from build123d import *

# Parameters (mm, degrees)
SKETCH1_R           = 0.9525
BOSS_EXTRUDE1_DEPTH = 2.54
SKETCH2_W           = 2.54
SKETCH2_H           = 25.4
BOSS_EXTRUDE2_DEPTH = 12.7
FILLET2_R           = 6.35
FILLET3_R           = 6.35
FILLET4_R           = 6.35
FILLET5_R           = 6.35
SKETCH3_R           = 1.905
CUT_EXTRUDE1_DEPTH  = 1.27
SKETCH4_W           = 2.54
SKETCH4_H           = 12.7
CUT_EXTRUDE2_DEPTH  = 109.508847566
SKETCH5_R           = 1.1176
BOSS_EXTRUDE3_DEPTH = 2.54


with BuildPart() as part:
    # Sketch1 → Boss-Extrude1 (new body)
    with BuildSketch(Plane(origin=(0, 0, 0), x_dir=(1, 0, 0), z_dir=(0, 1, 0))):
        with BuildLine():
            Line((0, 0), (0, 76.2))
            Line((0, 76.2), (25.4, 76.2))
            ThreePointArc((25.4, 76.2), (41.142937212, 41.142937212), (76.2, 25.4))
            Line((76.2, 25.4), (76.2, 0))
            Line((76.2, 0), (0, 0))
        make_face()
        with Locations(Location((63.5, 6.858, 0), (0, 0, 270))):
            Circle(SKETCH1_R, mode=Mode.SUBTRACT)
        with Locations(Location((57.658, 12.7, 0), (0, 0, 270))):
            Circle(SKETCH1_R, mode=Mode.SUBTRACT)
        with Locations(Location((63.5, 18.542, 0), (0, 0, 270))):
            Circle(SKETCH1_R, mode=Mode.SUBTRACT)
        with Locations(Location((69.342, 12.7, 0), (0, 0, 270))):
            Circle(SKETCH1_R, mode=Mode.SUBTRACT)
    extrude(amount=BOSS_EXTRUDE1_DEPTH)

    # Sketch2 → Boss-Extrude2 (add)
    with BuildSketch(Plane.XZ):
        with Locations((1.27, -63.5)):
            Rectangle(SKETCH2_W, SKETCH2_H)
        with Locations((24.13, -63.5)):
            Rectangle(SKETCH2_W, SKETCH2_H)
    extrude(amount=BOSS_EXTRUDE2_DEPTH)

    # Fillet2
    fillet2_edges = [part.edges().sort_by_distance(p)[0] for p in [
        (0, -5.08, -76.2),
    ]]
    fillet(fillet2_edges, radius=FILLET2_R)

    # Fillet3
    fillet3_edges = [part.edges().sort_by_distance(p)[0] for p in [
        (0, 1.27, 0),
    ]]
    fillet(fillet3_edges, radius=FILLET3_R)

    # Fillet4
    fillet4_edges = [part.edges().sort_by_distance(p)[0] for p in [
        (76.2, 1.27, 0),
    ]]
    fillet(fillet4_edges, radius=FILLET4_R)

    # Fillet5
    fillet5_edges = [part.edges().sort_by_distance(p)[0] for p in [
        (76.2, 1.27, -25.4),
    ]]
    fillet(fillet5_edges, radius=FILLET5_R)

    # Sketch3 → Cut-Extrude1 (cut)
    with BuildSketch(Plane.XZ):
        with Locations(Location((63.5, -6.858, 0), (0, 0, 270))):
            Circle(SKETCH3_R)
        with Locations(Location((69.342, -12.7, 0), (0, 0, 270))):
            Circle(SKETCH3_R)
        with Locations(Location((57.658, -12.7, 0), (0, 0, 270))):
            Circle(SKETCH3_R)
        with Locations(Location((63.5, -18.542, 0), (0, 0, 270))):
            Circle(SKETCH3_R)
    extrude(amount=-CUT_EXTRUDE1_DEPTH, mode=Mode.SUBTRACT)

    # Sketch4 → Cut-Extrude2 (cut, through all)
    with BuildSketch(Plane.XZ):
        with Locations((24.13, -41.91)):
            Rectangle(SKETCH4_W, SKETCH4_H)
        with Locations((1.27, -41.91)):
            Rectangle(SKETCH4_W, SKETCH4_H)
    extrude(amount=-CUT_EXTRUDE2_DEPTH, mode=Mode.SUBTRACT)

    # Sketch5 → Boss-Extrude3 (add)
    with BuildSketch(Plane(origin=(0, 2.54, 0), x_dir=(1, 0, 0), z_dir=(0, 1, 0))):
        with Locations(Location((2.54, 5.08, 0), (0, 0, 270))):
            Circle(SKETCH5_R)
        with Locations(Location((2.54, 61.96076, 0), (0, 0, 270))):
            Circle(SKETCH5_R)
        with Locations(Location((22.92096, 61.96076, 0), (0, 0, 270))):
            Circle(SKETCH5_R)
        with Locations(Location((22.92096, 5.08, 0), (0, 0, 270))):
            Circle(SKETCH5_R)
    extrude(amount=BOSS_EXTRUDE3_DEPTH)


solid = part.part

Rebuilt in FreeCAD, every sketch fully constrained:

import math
import FreeCAD as App
import Part
import Sketcher
from FreeCAD import Vector
Q = App.Units.Quantity


def edges_at(feature, points):
    """Names of the edges that pass closest to the given points."""
    edges = feature.Shape.Edges
    near = lambda p: min(range(len(edges)), key=lambda i: edges[i].distToShape(Part.Vertex(*p))[0])
    return sorted({f"Edge{near(p) + 1}" for p in points})

doc = App.newDocument("Part")
body = doc.addObject("PartDesign::Body", "Body")

sketch1 = doc.addObject("Sketcher::SketchObject", "Sketch")
body.addObject(sketch1)
sketch1.AttachmentSupport = (doc.XZ_Plane, [""])
sketch1.MapMode = "FlatFace"
sketch1.addGeometry([
    Part.LineSegment(Vector(0, -76.2, 0), Vector(0, 0, 0)),
    Part.LineSegment(Vector(0, 0, 0), Vector(76.2, 0, 0)),
    Part.LineSegment(Vector(76.2, 0, 0), Vector(76.2, -25.4, 0)),
    Part.ArcOfCircle(Part.Circle(Vector(79.375, -79.375, 0), Vector(0, 0, 1), 54.068302), math.radians(93.366461), math.radians(176.633539)),
    Part.LineSegment(Vector(25.4, -76.2, 0), Vector(0, -76.2, 0)),
    Part.Circle(Vector(63.5, -6.858, 0), Vector(0, 0, 1), 0.9525),
    Part.Circle(Vector(69.342, -12.7, 0), Vector(0, 0, 1), 0.9525),
    Part.Circle(Vector(57.658, -12.7, 0), Vector(0, 0, 1), 0.9525),
    Part.Circle(Vector(63.5, -18.542, 0), Vector(0, 0, 1), 0.9525),
], False)
sketch1.addConstraint([
    Sketcher.Constraint("Coincident", 0, 2, 1, 1),
    Sketcher.Constraint("Coincident", 1, 2, 2, 1),
    Sketcher.Constraint("Coincident", 2, 2, 3, 1),
    Sketcher.Constraint("Coincident", 3, 2, 4, 1),
    Sketcher.Constraint("Coincident", 4, 2, 0, 1),
    Sketcher.Constraint("Vertical", 0),
    Sketcher.Constraint("Horizontal", 1),
    Sketcher.Constraint("Vertical", 2),
    Sketcher.Constraint("Horizontal", 4),
    Sketcher.Constraint("Coincident", 0, 2, -1, 1),
    Sketcher.Constraint("Equal", 5, 6),
    Sketcher.Constraint("Equal", 6, 7),
    Sketcher.Constraint("Equal", 7, 8),
    Sketcher.Constraint("Horizontal", 6, 3, 7, 3),
    Sketcher.Constraint("Vertical", 5, 3, 8, 3),
    Sketcher.Constraint("Equal", 1, 0),
    Sketcher.Constraint("Equal", 4, 2),
    Sketcher.Constraint("DistanceX", 1, 1, 1, 2, Q("3 in")),
    Sketcher.Constraint("DistanceX", 4, 2, 4, 1, Q("1 in")),
    Sketcher.Constraint("Diameter", 5, Q("0.075 in")),
    Sketcher.Constraint("DistanceX", -1, 1, 5, 3, Q("2.5 in")),
    Sketcher.Constraint("DistanceY", 6, 3, -1, 1, Q("0.5 in")),
    Sketcher.Constraint("DistanceY", 5, 3, -1, 1, Q("0.27 in")),
    Sketcher.Constraint("DistanceX", -1, 1, 6, 3, Q("2.73 in")),
    Sketcher.Constraint("DistanceX", -1, 1, 7, 3, Q("2.27 in")),
    Sketcher.Constraint("DistanceY", 8, 3, -1, 1, Q("0.73 in")),
    Sketcher.Constraint("Radius", 3, Q("54.068302 mm")),
])
pad1 = doc.addObject("PartDesign::Pad", "Pad")
body.addObject(pad1)
pad1.Profile = sketch1
pad1.Length = Q("0.1 in")
pad1.Reversed = True

sketch2 = doc.addObject("Sketcher::SketchObject", "Sketch001")
body.addObject(sketch2)
sketch2.AttachmentSupport = (doc.XZ_Plane, [""])
sketch2.MapMode = "FlatFace"
sketch2.addGeometry([
    Part.LineSegment(Vector(0, -50.8, 0), Vector(0, -76.2, 0)),
    Part.LineSegment(Vector(0, -76.2, 0), Vector(2.54, -76.2, 0)),
    Part.LineSegment(Vector(2.54, -76.2, 0), Vector(2.54, -50.8, 0)),
    Part.LineSegment(Vector(2.54, -50.8, 0), Vector(0, -50.8, 0)),
    Part.LineSegment(Vector(22.86, -50.8, 0), Vector(22.86, -76.2, 0)),
    Part.LineSegment(Vector(22.86, -76.2, 0), Vector(25.4, -76.2, 0)),
    Part.LineSegment(Vector(25.4, -76.2, 0), Vector(25.4, -50.8, 0)),
    Part.LineSegment(Vector(25.4, -50.8, 0), Vector(22.86, -50.8, 0)),
], False)
sketch2.addConstraint([
    Sketcher.Constraint("Coincident", 0, 2, 1, 1),
    Sketcher.Constraint("Coincident", 1, 2, 2, 1),
    Sketcher.Constraint("Coincident", 2, 2, 3, 1),
    Sketcher.Constraint("Coincident", 3, 2, 0, 1),
    Sketcher.Constraint("Coincident", 4, 2, 5, 1),
    Sketcher.Constraint("Coincident", 5, 2, 6, 1),
    Sketcher.Constraint("Coincident", 6, 2, 7, 1),
    Sketcher.Constraint("Coincident", 7, 2, 4, 1),
    Sketcher.Constraint("Vertical", 0),
    Sketcher.Constraint("Horizontal", 1),
    Sketcher.Constraint("Vertical", 2),
    Sketcher.Constraint("Horizontal", 3),
    Sketcher.Constraint("Vertical", 4),
    Sketcher.Constraint("Horizontal", 5),
    Sketcher.Constraint("Vertical", 6),
    Sketcher.Constraint("Horizontal", 7),
    Sketcher.Constraint("PointOnObject", 0, 2, -2),
    Sketcher.Constraint("Horizontal", 1, 2, 4, 2),
    Sketcher.Constraint("Horizontal", 3, 2, 6, 2),
    Sketcher.Constraint("Equal", 3, 5),
    Sketcher.Constraint("DistanceY", 0, 2, 0, 1, Q("1 in")),
    Sketcher.Constraint("DistanceX", 1, 1, 1, 2, Q("0.1 in")),
    Sketcher.Constraint("DistanceY", 0, 2, -1, 1, Q("3 in")),
    Sketcher.Constraint("DistanceX", -1, 1, 5, 2, Q("1 in")),
])
pad2 = doc.addObject("PartDesign::Pad", "Pad001")
body.addObject(pad2)
pad2.Profile = sketch2
pad2.Length = Q("0.5 in")
doc.recompute()

fillet = doc.addObject("PartDesign::Fillet", "Fillet")
body.addObject(fillet)
fillet.Base = (pad2, edges_at(pad2, [(0, -5.08, -76.2)]))
fillet.Radius = Q("0.25 in")
doc.recompute()

fillet2 = doc.addObject("PartDesign::Fillet", "Fillet001")
body.addObject(fillet2)
fillet2.Base = (fillet, edges_at(fillet, [(0, 1.27, 0)]))
fillet2.Radius = Q("0.25 in")
doc.recompute()

fillet3 = doc.addObject("PartDesign::Fillet", "Fillet002")
body.addObject(fillet3)
fillet3.Base = (fillet2, edges_at(fillet2, [(76.2, 1.27, 0)]))
fillet3.Radius = Q("0.25 in")
doc.recompute()

fillet4 = doc.addObject("PartDesign::Fillet", "Fillet003")
body.addObject(fillet4)
fillet4.Base = (fillet3, edges_at(fillet3, [(76.2, 1.27, -25.4)]))
fillet4.Radius = Q("0.25 in")

sketch3 = doc.addObject("Sketcher::SketchObject", "Sketch002")
body.addObject(sketch3)
sketch3.AttachmentSupport = (doc.XZ_Plane, [""])
sketch3.MapMode = "FlatFace"
sketch3.addGeometry([
    Part.Circle(Vector(63.5, -6.858, 0), Vector(0, 0, 1), 1.905),
    Part.Circle(Vector(69.342, -12.7, 0), Vector(0, 0, 1), 1.905),
    Part.Circle(Vector(57.658, -12.7, 0), Vector(0, 0, 1), 1.905),
    Part.Circle(Vector(63.5, -18.542, 0), Vector(0, 0, 1), 1.905),
], False)
sketch3.addConstraint([
    Sketcher.Constraint("Equal", 0, 1),
    Sketcher.Constraint("Equal", 1, 2),
    Sketcher.Constraint("Equal", 2, 3),
    Sketcher.Constraint("Horizontal", 1, 3, 2, 3),
    Sketcher.Constraint("Vertical", 0, 3, 3, 3),
    Sketcher.Constraint("Diameter", 0, Q("0.15 in")),
    Sketcher.Constraint("DistanceX", -1, 1, 0, 3, Q("2.5 in")),
    Sketcher.Constraint("DistanceY", 1, 3, -1, 1, Q("0.5 in")),
    Sketcher.Constraint("DistanceY", 0, 3, -1, 1, Q("0.27 in")),
    Sketcher.Constraint("DistanceX", -1, 1, 1, 3, Q("2.73 in")),
    Sketcher.Constraint("DistanceX", -1, 1, 2, 3, Q("2.27 in")),
    Sketcher.Constraint("DistanceY", 3, 3, -1, 1, Q("0.73 in")),
])
pocket1 = doc.addObject("PartDesign::Pocket", "Pocket")
body.addObject(pocket1)
pocket1.Profile = sketch3
pocket1.Length = Q("0.05 in")

sketch4 = doc.addObject("Sketcher::SketchObject", "Sketch003")
body.addObject(sketch4)
sketch4.AttachmentSupport = (doc.XZ_Plane, [""])
sketch4.MapMode = "FlatFace"
sketch4.addGeometry([
    Part.LineSegment(Vector(22.86, -35.56, 0), Vector(22.86, -48.26, 0)),
    Part.LineSegment(Vector(22.86, -48.26, 0), Vector(25.4, -48.26, 0)),
    Part.LineSegment(Vector(25.4, -48.26, 0), Vector(25.4, -35.56, 0)),
    Part.LineSegment(Vector(25.4, -35.56, 0), Vector(22.86, -35.56, 0)),
    Part.LineSegment(Vector(0, -35.56, 0), Vector(0, -48.26, 0)),
    Part.LineSegment(Vector(0, -48.26, 0), Vector(2.54, -48.26, 0)),
    Part.LineSegment(Vector(2.54, -48.26, 0), Vector(2.54, -35.56, 0)),
    Part.LineSegment(Vector(2.54, -35.56, 0), Vector(0, -35.56, 0)),
], False)
sketch4.addConstraint([
    Sketcher.Constraint("Coincident", 0, 2, 1, 1),
    Sketcher.Constraint("Coincident", 1, 2, 2, 1),
    Sketcher.Constraint("Coincident", 2, 2, 3, 1),
    Sketcher.Constraint("Coincident", 3, 2, 0, 1),
    Sketcher.Constraint("Coincident", 4, 2, 5, 1),
    Sketcher.Constraint("Coincident", 5, 2, 6, 1),
    Sketcher.Constraint("Coincident", 6, 2, 7, 1),
    Sketcher.Constraint("Coincident", 7, 2, 4, 1),
    Sketcher.Constraint("Vertical", 0),
    Sketcher.Constraint("Horizontal", 1),
    Sketcher.Constraint("Vertical", 2),
    Sketcher.Constraint("Horizontal", 3),
    Sketcher.Constraint("Vertical", 4),
    Sketcher.Constraint("Horizontal", 5),
    Sketcher.Constraint("Vertical", 6),
    Sketcher.Constraint("Horizontal", 7),
    Sketcher.Constraint("PointOnObject", 4, 2, -2),
    Sketcher.Constraint("Horizontal", 1, 2, 4, 2),
    Sketcher.Constraint("Horizontal", 3, 2, 6, 2),
    Sketcher.Constraint("Equal", 3, 5),
    Sketcher.Constraint("DistanceX", 1, 1, 1, 2, Q("0.1 in")),
    Sketcher.Constraint("DistanceY", 0, 2, 0, 1, Q("0.5 in")),
    Sketcher.Constraint("DistanceX", -1, 1, 1, 2, Q("1 in")),
    Sketcher.Constraint("DistanceY", 0, 2, -1, 1, Q("1.9 in")),
])
pocket2 = doc.addObject("PartDesign::Pocket", "Pocket001")
body.addObject(pocket2)
pocket2.Profile = sketch4
pocket2.Type = "ThroughAll"

sketch5 = doc.addObject("Sketcher::SketchObject", "Sketch004")
body.addObject(sketch5)
sketch5.AttachmentSupport = (doc.XZ_Plane, [""])
sketch5.MapMode = "FlatFace"
sketch5.AttachmentOffset = App.Placement(Vector(0, 0, -0.1 * 25.4), App.Rotation())
sketch5.addGeometry([
    Part.Circle(Vector(2.54, -5.08, 0), Vector(0, 0, 1), 1.1176),
    Part.Circle(Vector(2.54, -61.96076, 0), Vector(0, 0, 1), 1.1176),
    Part.Circle(Vector(22.92096, -61.96076, 0), Vector(0, 0, 1), 1.1176),
    Part.Circle(Vector(22.92096, -5.08, 0), Vector(0, 0, 1), 1.1176),
], False)
sketch5.addConstraint([
    Sketcher.Constraint("Equal", 0, 1),
    Sketcher.Constraint("Equal", 1, 2),
    Sketcher.Constraint("Equal", 2, 3),
    Sketcher.Constraint("Horizontal", 1, 3, 2, 3),
    Sketcher.Constraint("Horizontal", 0, 3, 3, 3),
    Sketcher.Constraint("Vertical", 0, 3, 1, 3),
    Sketcher.Constraint("Vertical", 2, 3, 3, 3),
    Sketcher.Constraint("Diameter", 0, Q("0.088 in")),
    Sketcher.Constraint("DistanceX", -1, 1, 0, 3, Q("0.1 in")),
    Sketcher.Constraint("DistanceY", 0, 3, -1, 1, Q("0.2 in")),
    Sketcher.Constraint("DistanceY", 1, 3, -1, 1, Q("2.4394 in")),
    Sketcher.Constraint("DistanceX", -1, 1, 2, 3, Q("0.9024 in")),
])
pad3 = doc.addObject("PartDesign::Pad", "Pad002")
body.addObject(pad3)
pad3.Profile = sketch5
pad3.Length = Q("0.1 in")
pad3.Reversed = True

doc.recompute()
